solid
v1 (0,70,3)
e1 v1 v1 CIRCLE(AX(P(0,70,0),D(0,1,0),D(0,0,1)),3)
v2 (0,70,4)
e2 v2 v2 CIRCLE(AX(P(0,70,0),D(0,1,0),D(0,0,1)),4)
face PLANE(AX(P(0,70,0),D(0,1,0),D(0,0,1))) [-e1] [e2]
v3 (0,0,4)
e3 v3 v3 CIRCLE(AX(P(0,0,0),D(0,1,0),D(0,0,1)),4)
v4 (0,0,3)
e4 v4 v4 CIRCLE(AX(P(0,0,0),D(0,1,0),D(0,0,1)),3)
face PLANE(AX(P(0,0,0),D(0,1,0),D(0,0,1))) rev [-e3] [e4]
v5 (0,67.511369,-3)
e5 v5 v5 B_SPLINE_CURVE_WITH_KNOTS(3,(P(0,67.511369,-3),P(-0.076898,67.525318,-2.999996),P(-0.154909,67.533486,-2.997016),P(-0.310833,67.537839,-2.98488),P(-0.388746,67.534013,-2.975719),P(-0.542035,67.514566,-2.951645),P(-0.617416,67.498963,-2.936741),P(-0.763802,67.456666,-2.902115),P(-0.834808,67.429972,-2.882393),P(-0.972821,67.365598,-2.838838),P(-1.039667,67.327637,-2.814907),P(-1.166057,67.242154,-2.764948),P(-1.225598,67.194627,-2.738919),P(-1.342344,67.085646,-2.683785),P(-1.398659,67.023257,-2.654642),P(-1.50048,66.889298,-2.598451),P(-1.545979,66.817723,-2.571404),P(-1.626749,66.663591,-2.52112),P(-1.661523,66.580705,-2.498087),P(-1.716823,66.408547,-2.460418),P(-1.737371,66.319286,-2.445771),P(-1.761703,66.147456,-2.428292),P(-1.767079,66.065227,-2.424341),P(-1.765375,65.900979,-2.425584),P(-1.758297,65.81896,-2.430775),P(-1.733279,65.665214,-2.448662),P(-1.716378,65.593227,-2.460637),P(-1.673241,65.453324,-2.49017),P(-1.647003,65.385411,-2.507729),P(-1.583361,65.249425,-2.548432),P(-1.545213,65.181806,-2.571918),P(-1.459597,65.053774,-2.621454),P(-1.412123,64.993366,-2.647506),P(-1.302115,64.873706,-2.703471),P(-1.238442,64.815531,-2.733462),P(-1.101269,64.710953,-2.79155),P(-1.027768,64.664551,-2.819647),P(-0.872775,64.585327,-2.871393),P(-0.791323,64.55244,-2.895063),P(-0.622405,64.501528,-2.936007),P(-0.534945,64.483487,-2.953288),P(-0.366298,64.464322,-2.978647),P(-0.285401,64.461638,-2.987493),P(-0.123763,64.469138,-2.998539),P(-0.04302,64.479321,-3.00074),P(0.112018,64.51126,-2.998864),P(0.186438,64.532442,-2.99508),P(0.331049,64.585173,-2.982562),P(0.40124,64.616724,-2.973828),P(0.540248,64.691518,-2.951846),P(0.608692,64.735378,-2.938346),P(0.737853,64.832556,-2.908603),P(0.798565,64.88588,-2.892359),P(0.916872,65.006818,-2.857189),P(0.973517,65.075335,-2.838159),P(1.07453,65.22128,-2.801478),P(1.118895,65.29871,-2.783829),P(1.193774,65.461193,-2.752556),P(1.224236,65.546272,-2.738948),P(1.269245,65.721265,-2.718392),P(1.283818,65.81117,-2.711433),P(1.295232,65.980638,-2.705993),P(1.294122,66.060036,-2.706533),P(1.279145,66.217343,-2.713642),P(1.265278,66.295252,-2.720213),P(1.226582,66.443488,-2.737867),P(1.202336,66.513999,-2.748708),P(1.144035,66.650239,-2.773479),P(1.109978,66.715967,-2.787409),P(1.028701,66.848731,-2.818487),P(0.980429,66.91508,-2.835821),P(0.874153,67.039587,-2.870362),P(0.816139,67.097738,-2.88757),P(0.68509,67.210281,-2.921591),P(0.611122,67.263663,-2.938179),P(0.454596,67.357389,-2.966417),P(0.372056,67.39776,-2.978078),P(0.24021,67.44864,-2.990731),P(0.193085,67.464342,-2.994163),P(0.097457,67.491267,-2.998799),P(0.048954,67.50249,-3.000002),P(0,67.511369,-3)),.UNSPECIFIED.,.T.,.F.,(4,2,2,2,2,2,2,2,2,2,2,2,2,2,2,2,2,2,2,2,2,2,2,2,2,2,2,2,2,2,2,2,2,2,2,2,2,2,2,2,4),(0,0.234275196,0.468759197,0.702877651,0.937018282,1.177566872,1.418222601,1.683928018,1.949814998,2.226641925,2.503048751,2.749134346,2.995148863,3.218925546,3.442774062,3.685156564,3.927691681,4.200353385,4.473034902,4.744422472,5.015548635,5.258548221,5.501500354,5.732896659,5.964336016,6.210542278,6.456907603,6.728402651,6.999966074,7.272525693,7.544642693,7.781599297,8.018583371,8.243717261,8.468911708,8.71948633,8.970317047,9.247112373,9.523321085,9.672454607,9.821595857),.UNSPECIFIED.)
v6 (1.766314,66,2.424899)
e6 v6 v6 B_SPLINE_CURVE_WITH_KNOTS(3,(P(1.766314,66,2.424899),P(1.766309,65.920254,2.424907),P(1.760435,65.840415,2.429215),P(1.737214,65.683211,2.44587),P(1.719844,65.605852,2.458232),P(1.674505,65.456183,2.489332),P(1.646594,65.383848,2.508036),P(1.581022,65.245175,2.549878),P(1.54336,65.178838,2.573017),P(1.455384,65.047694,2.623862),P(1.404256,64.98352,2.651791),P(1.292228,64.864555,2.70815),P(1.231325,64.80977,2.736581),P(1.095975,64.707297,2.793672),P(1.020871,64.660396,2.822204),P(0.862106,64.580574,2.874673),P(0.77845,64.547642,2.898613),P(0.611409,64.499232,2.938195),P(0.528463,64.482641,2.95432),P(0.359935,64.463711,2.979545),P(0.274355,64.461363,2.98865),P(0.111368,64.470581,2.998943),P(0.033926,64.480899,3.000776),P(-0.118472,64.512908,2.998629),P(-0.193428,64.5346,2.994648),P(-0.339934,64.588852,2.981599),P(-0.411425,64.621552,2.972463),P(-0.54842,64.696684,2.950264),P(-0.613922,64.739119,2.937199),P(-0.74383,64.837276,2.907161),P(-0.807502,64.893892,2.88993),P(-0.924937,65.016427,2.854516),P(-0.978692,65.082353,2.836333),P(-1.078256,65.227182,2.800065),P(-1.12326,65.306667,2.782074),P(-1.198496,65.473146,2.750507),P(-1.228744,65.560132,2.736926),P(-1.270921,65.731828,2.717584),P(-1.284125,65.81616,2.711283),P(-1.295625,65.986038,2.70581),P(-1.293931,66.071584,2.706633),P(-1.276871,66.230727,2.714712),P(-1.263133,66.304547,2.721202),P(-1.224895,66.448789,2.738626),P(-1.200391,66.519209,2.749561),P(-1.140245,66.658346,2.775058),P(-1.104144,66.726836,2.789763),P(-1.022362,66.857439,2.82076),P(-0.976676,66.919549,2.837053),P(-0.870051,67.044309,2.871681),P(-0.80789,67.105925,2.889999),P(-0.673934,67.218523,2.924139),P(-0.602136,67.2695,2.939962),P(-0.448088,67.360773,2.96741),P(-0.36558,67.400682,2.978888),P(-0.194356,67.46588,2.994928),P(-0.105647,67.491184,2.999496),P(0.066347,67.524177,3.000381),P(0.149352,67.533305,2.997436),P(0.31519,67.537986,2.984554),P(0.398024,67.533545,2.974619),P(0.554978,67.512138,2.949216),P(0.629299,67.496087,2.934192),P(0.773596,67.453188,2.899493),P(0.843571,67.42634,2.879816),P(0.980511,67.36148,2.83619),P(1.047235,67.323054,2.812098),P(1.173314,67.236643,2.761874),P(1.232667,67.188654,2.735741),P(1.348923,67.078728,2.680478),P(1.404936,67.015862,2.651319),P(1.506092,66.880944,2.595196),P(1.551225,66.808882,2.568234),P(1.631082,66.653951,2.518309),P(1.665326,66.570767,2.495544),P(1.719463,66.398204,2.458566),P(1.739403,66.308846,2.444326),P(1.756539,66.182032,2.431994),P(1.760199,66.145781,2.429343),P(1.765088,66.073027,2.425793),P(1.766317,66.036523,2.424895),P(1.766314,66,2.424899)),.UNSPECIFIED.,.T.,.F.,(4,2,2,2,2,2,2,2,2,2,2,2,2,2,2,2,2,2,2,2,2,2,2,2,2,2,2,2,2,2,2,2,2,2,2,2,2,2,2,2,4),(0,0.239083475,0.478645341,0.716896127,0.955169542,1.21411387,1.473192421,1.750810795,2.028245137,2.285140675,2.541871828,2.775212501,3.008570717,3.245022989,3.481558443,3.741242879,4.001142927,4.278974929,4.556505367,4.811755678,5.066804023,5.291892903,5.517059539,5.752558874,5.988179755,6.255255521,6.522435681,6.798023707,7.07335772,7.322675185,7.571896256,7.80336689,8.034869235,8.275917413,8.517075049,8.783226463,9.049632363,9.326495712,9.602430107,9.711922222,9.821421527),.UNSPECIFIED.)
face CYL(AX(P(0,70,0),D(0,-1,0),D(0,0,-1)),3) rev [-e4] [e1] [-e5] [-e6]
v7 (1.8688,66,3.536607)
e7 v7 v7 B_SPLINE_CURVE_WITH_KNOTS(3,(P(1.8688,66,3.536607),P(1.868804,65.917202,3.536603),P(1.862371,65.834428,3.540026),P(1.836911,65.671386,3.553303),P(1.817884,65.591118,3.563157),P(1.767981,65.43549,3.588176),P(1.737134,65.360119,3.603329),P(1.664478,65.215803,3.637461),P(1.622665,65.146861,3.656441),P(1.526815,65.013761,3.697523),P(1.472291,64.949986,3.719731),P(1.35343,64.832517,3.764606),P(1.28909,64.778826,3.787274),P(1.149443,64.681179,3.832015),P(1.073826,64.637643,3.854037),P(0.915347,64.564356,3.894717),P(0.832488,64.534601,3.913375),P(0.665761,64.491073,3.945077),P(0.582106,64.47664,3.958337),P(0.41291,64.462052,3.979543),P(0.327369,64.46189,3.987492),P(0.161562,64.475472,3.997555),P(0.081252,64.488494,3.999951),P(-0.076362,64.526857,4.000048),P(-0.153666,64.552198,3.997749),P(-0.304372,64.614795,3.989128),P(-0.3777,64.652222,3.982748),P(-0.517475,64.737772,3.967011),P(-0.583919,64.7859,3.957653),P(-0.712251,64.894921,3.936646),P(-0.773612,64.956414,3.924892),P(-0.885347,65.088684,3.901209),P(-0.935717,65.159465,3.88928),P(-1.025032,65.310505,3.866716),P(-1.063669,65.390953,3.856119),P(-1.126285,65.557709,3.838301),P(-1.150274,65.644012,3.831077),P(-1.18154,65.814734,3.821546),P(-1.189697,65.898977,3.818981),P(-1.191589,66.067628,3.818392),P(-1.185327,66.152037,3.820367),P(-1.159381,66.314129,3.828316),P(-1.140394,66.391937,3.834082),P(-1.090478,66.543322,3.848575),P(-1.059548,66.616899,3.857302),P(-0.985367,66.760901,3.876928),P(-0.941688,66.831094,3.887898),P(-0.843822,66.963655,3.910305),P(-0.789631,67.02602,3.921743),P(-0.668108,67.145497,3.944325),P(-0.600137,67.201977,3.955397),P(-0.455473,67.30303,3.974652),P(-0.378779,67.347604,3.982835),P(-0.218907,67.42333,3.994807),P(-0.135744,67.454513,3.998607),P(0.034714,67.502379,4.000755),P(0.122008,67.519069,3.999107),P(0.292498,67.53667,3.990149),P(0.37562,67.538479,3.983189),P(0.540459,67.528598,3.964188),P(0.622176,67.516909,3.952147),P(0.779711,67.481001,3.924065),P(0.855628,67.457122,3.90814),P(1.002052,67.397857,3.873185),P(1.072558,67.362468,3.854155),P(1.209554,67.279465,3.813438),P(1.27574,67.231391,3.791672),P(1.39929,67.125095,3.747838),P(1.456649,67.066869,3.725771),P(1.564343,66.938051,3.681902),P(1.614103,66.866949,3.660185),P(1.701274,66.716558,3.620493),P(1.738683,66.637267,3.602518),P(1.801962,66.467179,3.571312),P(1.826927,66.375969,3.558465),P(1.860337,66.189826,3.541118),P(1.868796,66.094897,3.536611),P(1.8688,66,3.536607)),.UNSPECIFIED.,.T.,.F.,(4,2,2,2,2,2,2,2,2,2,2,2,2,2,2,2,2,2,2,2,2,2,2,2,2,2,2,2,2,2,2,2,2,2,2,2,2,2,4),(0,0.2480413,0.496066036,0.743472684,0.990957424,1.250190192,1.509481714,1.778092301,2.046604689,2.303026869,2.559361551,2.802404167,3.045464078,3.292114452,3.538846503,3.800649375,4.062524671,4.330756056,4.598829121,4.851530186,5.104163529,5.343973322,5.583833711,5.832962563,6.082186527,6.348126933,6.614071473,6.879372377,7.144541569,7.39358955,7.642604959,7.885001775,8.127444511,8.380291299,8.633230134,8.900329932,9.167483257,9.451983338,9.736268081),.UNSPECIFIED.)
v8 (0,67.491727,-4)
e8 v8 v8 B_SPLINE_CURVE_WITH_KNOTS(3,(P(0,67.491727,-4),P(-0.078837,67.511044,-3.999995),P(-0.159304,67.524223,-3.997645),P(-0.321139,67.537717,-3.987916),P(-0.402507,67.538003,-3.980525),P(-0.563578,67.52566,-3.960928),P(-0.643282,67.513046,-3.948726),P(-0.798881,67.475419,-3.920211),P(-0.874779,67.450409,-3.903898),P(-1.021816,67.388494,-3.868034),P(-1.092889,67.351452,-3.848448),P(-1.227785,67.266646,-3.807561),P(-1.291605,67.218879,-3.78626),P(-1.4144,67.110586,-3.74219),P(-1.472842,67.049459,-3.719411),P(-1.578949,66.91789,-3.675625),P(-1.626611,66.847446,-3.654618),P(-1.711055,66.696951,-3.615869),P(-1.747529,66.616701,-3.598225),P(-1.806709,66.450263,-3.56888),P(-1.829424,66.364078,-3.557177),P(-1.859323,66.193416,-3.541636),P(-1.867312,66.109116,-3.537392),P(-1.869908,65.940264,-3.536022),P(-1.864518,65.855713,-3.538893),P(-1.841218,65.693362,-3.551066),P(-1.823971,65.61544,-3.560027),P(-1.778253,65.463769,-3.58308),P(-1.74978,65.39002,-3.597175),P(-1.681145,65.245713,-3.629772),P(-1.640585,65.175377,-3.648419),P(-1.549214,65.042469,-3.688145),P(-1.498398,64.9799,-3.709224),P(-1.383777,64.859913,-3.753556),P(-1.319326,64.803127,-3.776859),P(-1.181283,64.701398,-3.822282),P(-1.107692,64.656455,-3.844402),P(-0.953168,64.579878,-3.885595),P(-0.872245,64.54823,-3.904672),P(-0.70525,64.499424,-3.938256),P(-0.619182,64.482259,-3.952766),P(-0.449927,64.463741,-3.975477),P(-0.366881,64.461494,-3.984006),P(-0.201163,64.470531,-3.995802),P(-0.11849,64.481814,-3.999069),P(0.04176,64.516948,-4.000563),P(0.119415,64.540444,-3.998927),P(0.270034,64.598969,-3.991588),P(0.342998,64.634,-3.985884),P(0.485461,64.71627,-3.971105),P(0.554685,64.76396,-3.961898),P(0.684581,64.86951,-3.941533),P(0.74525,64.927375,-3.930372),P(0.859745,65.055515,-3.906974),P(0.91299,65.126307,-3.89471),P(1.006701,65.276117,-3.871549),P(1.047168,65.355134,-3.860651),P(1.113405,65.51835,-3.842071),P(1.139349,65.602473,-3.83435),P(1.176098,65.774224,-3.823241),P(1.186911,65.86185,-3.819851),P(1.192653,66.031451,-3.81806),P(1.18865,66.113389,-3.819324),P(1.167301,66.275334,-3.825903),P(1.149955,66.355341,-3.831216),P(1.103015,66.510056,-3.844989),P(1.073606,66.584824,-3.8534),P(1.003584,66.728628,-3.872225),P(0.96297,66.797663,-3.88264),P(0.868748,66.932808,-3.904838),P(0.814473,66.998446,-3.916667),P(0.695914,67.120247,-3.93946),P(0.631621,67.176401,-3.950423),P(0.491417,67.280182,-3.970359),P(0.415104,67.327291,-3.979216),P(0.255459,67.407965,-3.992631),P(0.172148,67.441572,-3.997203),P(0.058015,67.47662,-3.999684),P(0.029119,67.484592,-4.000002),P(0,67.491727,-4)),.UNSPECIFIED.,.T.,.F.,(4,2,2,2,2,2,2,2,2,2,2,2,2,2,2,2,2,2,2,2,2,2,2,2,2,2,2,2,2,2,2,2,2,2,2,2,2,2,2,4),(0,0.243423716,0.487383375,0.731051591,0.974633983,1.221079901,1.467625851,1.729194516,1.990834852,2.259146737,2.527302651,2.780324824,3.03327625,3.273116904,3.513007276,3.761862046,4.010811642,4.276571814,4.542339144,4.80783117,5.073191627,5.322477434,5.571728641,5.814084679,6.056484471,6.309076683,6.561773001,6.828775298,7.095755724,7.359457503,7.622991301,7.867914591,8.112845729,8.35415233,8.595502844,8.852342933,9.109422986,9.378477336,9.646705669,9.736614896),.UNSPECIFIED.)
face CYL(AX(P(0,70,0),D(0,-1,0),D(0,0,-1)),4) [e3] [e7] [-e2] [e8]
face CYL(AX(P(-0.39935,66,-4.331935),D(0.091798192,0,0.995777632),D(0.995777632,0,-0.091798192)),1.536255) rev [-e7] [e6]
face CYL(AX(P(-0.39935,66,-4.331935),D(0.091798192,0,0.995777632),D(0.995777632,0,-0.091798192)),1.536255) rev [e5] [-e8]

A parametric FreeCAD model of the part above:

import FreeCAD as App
import Part
import Sketcher

V = App.Vector

doc = App.newDocument("Part")
params = doc.addObject("Spreadsheet::Sheet", "Params")
for row, (alias, value) in enumerate([
    ("sketch1_diameter", "8 mm"),
    ("sketch1_diameter2", "6 mm"),
    ("pad1_length", "70 mm"),
], start=1):
    params.set(f"A{row}", alias)
    params.set(f"B{row}", "=" + value)
    params.setAlias(f"B{row}", alias)

body = doc.addObject("PartDesign::Body", "Body")

# Sketch on XZ plane
sketch1 = doc.addObject("Sketcher::SketchObject", "Sketch")
body.addObject(sketch1)
sketch1.AttachmentSupport = (doc.XZ_Plane, [""])
sketch1.MapMode = "FlatFace"
sketch1.addGeometry([
    Part.Circle(V(0, 0, 0), V(0, 0, 1), 4),
    Part.Circle(V(0, 0, 0), V(0, 0, 1), 3),
], False)
sketch1.addConstraint([
    Sketcher.Constraint("Coincident", 0, 3, -1, 1),
    Sketcher.Constraint("Coincident", 1, 3, -1, 1),
    Sketcher.Constraint("Diameter", 0, 8.0),
    Sketcher.Constraint("Diameter", 1, 6.0),
])
sketch1.setExpression("Constraints[2]", "Params.sketch1_diameter")
sketch1.setExpression("Constraints[3]", "Params.sketch1_diameter2")
pad1 = doc.addObject("PartDesign::Pad", "Pad")
body.addObject(pad1)
pad1.Profile = sketch1
pad1.setExpression("Length", "Params.pad1_length")
pad1.Reversed = True

# Sketch on an angled plane
sketch2 = doc.addObject("Sketcher::SketchObject", "Sketch001")
body.addObject(sketch2)
sketch2.Placement = App.Placement(V(0.110158, 0, 1.194933), App.Rotation(V(0.995777632, 0, -0.091798192), V(0, 1, 0), V(0.091798192, 0, 0.995777632), "ZXY"))
sketch2.addGeometry(Part.Circle(V(0, 66, 0), V(0, 0, 1), 1.5), False)
sketch2.addConstraint([
    Sketcher.Constraint("PointOnObject", 0, 3, -2),
    Sketcher.Constraint("DistanceY", -1, 1, 0, 3, 66.0),
    Sketcher.Constraint("Diameter", 0, 3.07251),
])
pocket1 = doc.addObject("PartDesign::Pocket", "Pocket")
body.addObject(pocket1)
pocket1.Profile = sketch2
pocket1.Type = "ThroughAll"
pocket1.Midplane = True

doc.recompute()
